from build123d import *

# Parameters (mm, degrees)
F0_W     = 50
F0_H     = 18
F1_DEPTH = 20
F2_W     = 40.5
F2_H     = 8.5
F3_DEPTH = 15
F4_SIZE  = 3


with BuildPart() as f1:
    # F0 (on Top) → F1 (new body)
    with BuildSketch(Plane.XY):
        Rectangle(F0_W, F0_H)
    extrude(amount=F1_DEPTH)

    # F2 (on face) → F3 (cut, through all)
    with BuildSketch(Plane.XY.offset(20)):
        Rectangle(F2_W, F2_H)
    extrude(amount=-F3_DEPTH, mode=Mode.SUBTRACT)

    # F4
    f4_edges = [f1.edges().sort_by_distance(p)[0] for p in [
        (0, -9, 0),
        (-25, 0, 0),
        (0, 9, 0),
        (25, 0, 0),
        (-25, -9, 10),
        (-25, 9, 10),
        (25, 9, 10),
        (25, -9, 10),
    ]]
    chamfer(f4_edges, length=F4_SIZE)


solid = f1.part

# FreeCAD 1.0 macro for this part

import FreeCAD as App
import Part
import Sketcher

V = App.Vector
Q = App.Units.Quantity


def edges_at(feature, points):
    """Names of the edges that pass closest to the given points."""
    edges = feature.Shape.Edges
    near = lambda p: min(range(len(edges)), key=lambda i: edges[i].distToShape(Part.Vertex(*p))[0])
    return sorted({f"Edge{near(p) + 1}" for p in points})


def add_polygon(sketch, points):
    """Adds a closed chain of lines whose ends are joined by coincident constraints."""
    first, n = sketch.GeometryCount, len(points)
    for a, b in zip(points, points[1:] + points[:1]):
        sketch.addGeometry(Part.LineSegment(App.Vector(*a, 0), App.Vector(*b, 0)), False)
    for i in range(n):
        sketch.addConstraint(Sketcher.Constraint("Coincident", first + i, 2, first + (i + 1) % n, 1))

doc = App.newDocument("Part")
body = doc.addObject("PartDesign::Body", "Body")

# Sketch on XY plane
sketch1 = doc.addObject("Sketcher::SketchObject", "Sketch")
body.addObject(sketch1)
sketch1.AttachmentSupport = (doc.XY_Plane, [""])
sketch1.MapMode = "FlatFace"
add_polygon(sketch1, [(-25, 9), (-25, -9), (25, -9), (25, 9)])  # lines 0-3
sketch1.addConstraint([
    Sketcher.Constraint("Vertical", 0),
    Sketcher.Constraint("Horizontal", 1),
    Sketcher.Constraint("Vertical", 2),
    Sketcher.Constraint("Horizontal", 3),
    Sketcher.Constraint("Symmetric", 0, 2, 2, 2, -1, 1),
    Sketcher.Constraint("DistanceX", 1, 1, 1, 2, Q("50 mm")),
    Sketcher.Constraint("DistanceY", 0, 2, 0, 1, Q("18 mm")),
])
pad1 = doc.addObject("PartDesign::Pad", "Pad")
body.addObject(pad1)
pad1.Profile = sketch1
pad1.Length = 20

# Sketch on XY plane
sketch2 = doc.addObject("Sketcher::SketchObject", "Sketch001")
body.addObject(sketch2)
sketch2.AttachmentSupport = (doc.XY_Plane, [""])
sketch2.MapMode = "FlatFace"
sketch2.AttachmentOffset = App.Placement(V(0, 0, 20), App.Rotation())
add_polygon(sketch2, [(-20, 4), (-20, -4), (20, -4), (20, 4)])  # lines 0-3
sketch2.addConstraint([
    Sketcher.Constraint("Vertical", 0),
    Sketcher.Constraint("Horizontal", 1),
    Sketcher.Constraint("Vertical", 2),
    Sketcher.Constraint("Horizontal", 3),
    Sketcher.Constraint("Symmetric", 0, 2, 2, 2, -1, 1),
    Sketcher.Constraint("DistanceX", 1, 1, 1, 2, Q("40.5 mm")),
    Sketcher.Constraint("DistanceY", 0, 2, 0, 1, Q("8.5 mm")),
])
pocket1 = doc.addObject("PartDesign::Pocket", "Pocket")
body.addObject(pocket1)
pocket1.Profile = sketch2
pocket1.Length = 15
doc.recompute()

chamfer = doc.addObject("PartDesign::Chamfer", "Chamfer")
body.addObject(chamfer)
chamfer.Base = (pocket1, edges_at(pocket1, [
    (0, -9, 0),
    (-25, 0, 0),
    (0, 9, 0),
    (25, 0, 0),
    (-25, -9, 10),
    (-25, 9, 10),
    (25, 9, 10),
    (25, -9, 10),
]))
chamfer.Size = 3

doc.recompute()
